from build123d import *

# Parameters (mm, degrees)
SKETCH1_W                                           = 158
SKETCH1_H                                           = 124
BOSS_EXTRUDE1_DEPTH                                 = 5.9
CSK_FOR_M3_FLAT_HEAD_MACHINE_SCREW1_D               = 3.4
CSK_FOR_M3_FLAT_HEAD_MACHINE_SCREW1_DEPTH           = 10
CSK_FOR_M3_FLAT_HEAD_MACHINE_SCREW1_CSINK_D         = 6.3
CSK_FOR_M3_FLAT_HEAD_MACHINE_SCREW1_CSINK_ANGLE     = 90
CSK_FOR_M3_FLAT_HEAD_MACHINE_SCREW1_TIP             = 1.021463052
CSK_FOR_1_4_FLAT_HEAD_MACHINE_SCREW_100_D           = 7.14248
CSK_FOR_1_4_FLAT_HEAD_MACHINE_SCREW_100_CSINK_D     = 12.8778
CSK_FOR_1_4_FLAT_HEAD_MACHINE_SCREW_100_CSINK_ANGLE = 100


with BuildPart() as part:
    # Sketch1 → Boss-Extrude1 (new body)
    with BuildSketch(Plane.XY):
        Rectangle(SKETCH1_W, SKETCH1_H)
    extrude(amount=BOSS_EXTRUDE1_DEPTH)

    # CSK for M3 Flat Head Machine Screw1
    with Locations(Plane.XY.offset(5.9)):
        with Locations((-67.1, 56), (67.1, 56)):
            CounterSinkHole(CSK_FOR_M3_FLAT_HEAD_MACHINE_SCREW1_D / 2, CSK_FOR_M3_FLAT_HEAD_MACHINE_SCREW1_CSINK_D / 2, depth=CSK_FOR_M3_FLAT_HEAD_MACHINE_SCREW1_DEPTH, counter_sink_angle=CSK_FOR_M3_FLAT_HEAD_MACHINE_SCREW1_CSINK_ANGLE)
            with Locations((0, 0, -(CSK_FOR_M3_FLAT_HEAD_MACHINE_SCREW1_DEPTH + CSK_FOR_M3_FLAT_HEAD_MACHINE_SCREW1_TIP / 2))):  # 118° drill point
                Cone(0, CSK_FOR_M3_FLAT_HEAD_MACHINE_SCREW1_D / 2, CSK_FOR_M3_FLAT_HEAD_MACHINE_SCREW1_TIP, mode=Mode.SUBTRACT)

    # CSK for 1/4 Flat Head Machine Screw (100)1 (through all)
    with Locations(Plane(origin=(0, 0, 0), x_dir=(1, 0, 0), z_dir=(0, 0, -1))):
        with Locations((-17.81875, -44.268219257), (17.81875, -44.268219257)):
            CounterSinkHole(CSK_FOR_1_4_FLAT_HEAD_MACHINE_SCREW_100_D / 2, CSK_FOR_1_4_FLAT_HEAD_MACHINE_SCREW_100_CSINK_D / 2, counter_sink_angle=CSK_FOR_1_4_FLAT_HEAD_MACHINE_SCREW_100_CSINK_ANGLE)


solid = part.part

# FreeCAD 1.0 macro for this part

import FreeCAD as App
import Part
import Sketcher
Q = App.Units.Quantity

doc = App.newDocument("Part")
params = doc.addObject("Spreadsheet::Sheet", "Params")
for row, (alias, value) in enumerate([
    ("sketch1_width", "158 mm"),
    ("sketch1_height", "124 mm"),
    ("pad1_length", "5.9 mm"),
    ("sketch2_diameter", "3.4 mm"),
    ("hole_diameter", "3.4 mm"),
    ("hole_depth", "10 mm"),
    ("hole_csink_diameter", "6.3 mm"),
    ("hole2_diameter", "7.14248 mm"),
    ("hole2_csink_diameter", "12.8778 mm"),
], start=1):
    params.set(f"A{row}", alias)
    params.set(f"B{row}", "=" + value)
    params.setAlias(f"B{row}", alias)

body = doc.addObject("PartDesign::Body", "Body")

# Sketch on XY plane
sketch1 = doc.addObject("Sketcher::SketchObject", "Sketch")
body.addObject(sketch1)
sketch1.AttachmentSupport = (doc.XY_Plane, [""])
sketch1.MapMode = "FlatFace"
sketch1.addGeometry(Part.LineSegment(App.Vector(-79, 62, 0), App.Vector(-79, -62, 0)), False)
sketch1.addGeometry(Part.LineSegment(App.Vector(-79, -62, 0), App.Vector(79, -62, 0)), False)
sketch1.addGeometry(Part.LineSegment(App.Vector(79, -62, 0), App.Vector(79, 62, 0)), False)
sketch1.addGeometry(Part.LineSegment(App.Vector(79, 62, 0), App.Vector(-79, 62, 0)), False)
sketch1.addConstraint(Sketcher.Constraint("Coincident", 0, 2, 1, 1))
sketch1.addConstraint(Sketcher.Constraint("Coincident", 1, 2, 2, 1))
sketch1.addConstraint(Sketcher.Constraint("Coincident", 2, 2, 3, 1))
sketch1.addConstraint(Sketcher.Constraint("Coincident", 3, 2, 0, 1))
sketch1.addConstraint(Sketcher.Constraint("Vertical", 0))
sketch1.addConstraint(Sketcher.Constraint("Horizontal", 1))
sketch1.addConstraint(Sketcher.Constraint("Vertical", 2))
sketch1.addConstraint(Sketcher.Constraint("Horizontal", 3))
sketch1.addConstraint(Sketcher.Constraint("Symmetric", 0, 2, 2, 2, -1, 1))
sketch1.addConstraint(Sketcher.Constraint("DistanceX", 1, 1, 1, 2, Q("158 mm")))
sketch1.addConstraint(Sketcher.Constraint("DistanceY", 0, 2, 0, 1, Q("124 mm")))
sketch1.setExpression("Constraints[9]", "Params.sketch1_width")
sketch1.setExpression("Constraints[10]", "Params.sketch1_height")
pad1 = doc.addObject("PartDesign::Pad", "Pad")
body.addObject(pad1)
pad1.Profile = sketch1
pad1.setExpression("Length", "Params.pad1_length")

# Sketch on XY plane
sketch2 = doc.addObject("Sketcher::SketchObject", "Sketch001")
body.addObject(sketch2)
sketch2.AttachmentSupport = (doc.XY_Plane, [""])
sketch2.MapMode = "FlatFace"
sketch2.AttachmentOffset = App.Placement(App.Vector(0, 0, 5.9), App.Rotation())
sketch2.addGeometry(Part.Circle(App.Vector(-67.1, 56, 0), App.Vector(0, 0, 1), 1.7), False)
sketch2.addGeometry(Part.Circle(App.Vector(67.1, 56, 0), App.Vector(0, 0, 1), 1.7), False)
sketch2.addConstraint(Sketcher.Constraint("Equal", 0, 1))
sketch2.addConstraint(Sketcher.Constraint("Symmetric", 0, 3, 1, 3, -2))
sketch2.addConstraint(Sketcher.Constraint("Diameter", 0, Q("3.4 mm")))
sketch2.addConstraint(Sketcher.Constraint("DistanceY", -1, 1, 0, 3, Q("56 mm")))
sketch2.addConstraint(Sketcher.Constraint("DistanceX", 0, 3, -1, 1, Q("67.1 mm")))
sketch2.setExpression("Constraints[2]", "Params.sketch2_diameter")
doc.recompute()
hole = doc.addObject("PartDesign::Hole", "Hole")
body.addObject(hole)
hole.Profile = sketch2
hole.ThreadType = "None"
hole.setExpression("Diameter", "Params.hole_diameter")
hole.DepthType = "Dimension"
hole.setExpression("Depth", "Params.hole_depth")
hole.DrillPoint = "Angled"
hole.DrillPointAngle = 118
hole.HoleCutType = "Countersink"
hole.setExpression("HoleCutDiameter", "Params.hole_csink_diameter")
hole.HoleCutCountersinkAngle = 90

# Sketch on XY plane
sketch3 = doc.addObject("Sketcher::SketchObject", "Sketch002")
body.addObject(sketch3)
sketch3.AttachmentSupport = (doc.XY_Plane, [""])
sketch3.MapMode = "FlatFace"
sketch3.addGeometry(Part.Circle(App.Vector(-17.8, 44.3, 0), App.Vector(0, 0, 1), 3.6), False)
sketch3.addGeometry(Part.Circle(App.Vector(17.8, 44.3, 0), App.Vector(0, 0, 1), 3.6), False)
sketch3.addConstraint(Sketcher.Constraint("Equal", 0, 1))
sketch3.addConstraint(Sketcher.Constraint("Symmetric", 0, 3, 1, 3, -2))
sketch3.addConstraint(Sketcher.Constraint("Diameter", 0, Q("7.14248 mm")))
sketch3.addConstraint(Sketcher.Constraint("DistanceX", 0, 3, 1, 3, Q("35.6375 mm")))
sketch3.addConstraint(Sketcher.Constraint("DistanceY", -1, 1, 0, 3, Q("44.268219 mm")))
doc.recompute()
hole2 = doc.addObject("PartDesign::Hole", "Hole001")
body.addObject(hole2)
hole2.Profile = sketch3
hole2.ThreadType = "None"
hole2.setExpression("Diameter", "Params.hole2_diameter")
hole2.DepthType = "ThroughAll"
hole2.HoleCutType = "Countersink"
hole2.setExpression("HoleCutDiameter", "Params.hole2_csink_diameter")
hole2.HoleCutCountersinkAngle = 100
hole2.Reversed = True

doc.recompute()
